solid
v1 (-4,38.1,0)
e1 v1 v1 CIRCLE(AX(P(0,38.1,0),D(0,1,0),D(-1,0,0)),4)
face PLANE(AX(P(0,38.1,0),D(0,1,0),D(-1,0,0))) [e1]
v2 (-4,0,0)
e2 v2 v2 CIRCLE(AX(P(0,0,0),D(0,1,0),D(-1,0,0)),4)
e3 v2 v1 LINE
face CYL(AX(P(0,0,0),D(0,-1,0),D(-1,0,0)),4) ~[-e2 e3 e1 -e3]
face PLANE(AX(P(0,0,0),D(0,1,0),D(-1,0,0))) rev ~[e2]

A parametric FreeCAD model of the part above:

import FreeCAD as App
import Part
import Sketcher
Q = App.Units.Quantity

doc = App.newDocument("Part")
body = doc.addObject("PartDesign::Body", "Body")

sketch1 = body.newObject("Sketcher::SketchObject", "Sketch")
sketch1.AttachmentSupport = (doc.getObject("XZ_Plane"), [""])
sketch1.MapMode = "FlatFace"
sketch1.addGeometry(Part.Circle(App.Vector(0, 0, 0), App.Vector(0, 0, 1), 4), False)
sketch1.addConstraint([
    Sketcher.Constraint("Coincident", 0, 3, -1, 1),
    Sketcher.Constraint("Diameter", 0, Q("8 mm")),
])
pad1 = body.newObject("PartDesign::Pad", "Pad")
pad1.Profile = sketch1
pad1.Length = 38.1
pad1.Reversed = True

doc.recompute()
